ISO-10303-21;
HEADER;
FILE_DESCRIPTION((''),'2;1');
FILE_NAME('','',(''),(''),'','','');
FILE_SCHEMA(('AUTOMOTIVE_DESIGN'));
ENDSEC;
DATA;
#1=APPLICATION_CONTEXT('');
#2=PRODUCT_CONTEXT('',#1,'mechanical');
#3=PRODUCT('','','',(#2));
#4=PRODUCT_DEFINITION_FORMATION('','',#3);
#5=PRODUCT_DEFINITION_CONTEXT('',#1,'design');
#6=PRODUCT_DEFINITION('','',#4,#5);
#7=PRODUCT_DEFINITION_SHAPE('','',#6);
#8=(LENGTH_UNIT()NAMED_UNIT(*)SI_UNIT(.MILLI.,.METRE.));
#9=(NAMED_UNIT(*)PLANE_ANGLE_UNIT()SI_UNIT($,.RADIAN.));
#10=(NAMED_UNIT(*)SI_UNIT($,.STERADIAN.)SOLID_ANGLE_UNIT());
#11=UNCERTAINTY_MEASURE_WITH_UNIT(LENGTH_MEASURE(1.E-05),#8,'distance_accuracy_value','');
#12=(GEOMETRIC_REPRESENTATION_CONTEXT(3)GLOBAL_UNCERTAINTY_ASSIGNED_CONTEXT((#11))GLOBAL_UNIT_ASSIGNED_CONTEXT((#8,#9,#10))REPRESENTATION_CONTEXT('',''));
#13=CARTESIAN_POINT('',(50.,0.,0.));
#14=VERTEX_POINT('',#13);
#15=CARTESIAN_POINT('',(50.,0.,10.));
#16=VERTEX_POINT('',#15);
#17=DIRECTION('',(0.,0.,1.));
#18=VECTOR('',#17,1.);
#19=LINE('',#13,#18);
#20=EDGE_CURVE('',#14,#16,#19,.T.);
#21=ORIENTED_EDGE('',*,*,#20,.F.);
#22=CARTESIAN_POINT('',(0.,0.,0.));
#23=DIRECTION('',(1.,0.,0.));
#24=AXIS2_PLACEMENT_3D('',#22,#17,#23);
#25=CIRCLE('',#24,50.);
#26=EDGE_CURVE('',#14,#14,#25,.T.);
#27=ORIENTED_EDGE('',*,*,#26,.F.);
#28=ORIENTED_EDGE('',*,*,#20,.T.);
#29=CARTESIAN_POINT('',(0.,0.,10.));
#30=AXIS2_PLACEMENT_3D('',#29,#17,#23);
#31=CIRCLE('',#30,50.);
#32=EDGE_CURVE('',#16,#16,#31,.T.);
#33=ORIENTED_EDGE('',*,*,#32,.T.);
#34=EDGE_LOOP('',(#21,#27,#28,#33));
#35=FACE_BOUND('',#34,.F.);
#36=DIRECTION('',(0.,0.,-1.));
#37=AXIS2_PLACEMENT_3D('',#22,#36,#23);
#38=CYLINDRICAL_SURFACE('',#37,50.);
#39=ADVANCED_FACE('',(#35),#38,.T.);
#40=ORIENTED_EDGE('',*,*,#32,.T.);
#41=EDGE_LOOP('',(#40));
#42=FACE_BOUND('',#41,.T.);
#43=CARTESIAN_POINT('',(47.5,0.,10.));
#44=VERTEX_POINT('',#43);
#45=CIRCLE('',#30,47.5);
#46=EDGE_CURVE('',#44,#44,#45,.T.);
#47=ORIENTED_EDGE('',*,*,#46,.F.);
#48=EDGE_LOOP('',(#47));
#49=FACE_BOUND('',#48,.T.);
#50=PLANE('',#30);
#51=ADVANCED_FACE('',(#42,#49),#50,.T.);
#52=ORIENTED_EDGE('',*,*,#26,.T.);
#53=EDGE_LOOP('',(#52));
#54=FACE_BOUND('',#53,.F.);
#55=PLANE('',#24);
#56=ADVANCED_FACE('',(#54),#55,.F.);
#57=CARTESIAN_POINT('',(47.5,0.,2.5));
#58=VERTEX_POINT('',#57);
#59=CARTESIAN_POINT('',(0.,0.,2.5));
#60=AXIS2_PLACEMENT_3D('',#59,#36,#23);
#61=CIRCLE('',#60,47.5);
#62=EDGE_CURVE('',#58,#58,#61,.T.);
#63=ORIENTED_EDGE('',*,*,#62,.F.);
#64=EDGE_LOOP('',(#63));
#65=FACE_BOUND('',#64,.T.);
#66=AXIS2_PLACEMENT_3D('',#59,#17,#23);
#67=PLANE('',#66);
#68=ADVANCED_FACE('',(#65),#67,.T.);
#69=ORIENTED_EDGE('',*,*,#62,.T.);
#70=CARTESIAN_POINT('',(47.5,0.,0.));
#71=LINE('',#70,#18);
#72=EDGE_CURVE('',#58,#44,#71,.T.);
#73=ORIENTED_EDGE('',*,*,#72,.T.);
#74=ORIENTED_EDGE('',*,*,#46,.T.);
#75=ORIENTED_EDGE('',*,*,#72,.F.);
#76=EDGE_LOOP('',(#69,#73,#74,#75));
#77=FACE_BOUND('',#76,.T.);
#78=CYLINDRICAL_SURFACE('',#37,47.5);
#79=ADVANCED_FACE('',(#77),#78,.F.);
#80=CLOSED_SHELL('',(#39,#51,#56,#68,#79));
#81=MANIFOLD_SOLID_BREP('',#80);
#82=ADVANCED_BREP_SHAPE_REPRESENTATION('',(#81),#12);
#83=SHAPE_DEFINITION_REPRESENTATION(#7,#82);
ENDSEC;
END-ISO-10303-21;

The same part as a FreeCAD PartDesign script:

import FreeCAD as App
import Part
import Sketcher
Q = App.Units.Quantity


def faces_at(feature, points):
    """Names of the faces that lie closest to the given points."""
    faces = feature.Shape.Faces
    near = lambda p: min(range(len(faces)), key=lambda i: faces[i].distToShape(Part.Vertex(*p))[0])
    return sorted({f"Face{near(p) + 1}" for p in points})

doc = App.newDocument("Part")
params = doc.addObject("Spreadsheet::Sheet", "Params")
for row, (alias, value) in enumerate([
    ("sketch1_diameter", "100 mm"),
    ("pad1_length", "10 mm"),
    ("thickness_wall", "2.5 mm"),
], start=1):
    params.set(f"A{row}", alias)
    params.set(f"B{row}", "=" + value)
    params.setAlias(f"B{row}", alias)

body = doc.addObject("PartDesign::Body", "Body")

# Sketch on XY plane
sketch1 = body.newObject("Sketcher::SketchObject", "Sketch")
sketch1.AttachmentSupport = (doc.getObject("XY_Plane"), [""])
sketch1.MapMode = "FlatFace"
sketch1.addGeometry(Part.Circle(App.Vector(0, 0, 0), App.Vector(0, 0, 1), 50), False)
sketch1.addConstraint([
    Sketcher.Constraint("Coincident", 0, 3, -1, 1),
    Sketcher.Constraint("Diameter", 0, Q("100 mm")),
])
sketch1.setExpression("Constraints[1]", "Params.sketch1_diameter")
pad1 = body.newObject("PartDesign::Pad", "Pad")
pad1.Profile = sketch1
pad1.setExpression("Length", "Params.pad1_length")
doc.recompute()

thickness = body.newObject("PartDesign::Thickness", "Thickness")
thickness.Base = (pad1, faces_at(pad1, [(0, 0, 10)]))
thickness.setExpression("Value", "Params.thickness_wall")
thickness.Reversed = True
thickness.Join = "Arc"

doc.recompute()
